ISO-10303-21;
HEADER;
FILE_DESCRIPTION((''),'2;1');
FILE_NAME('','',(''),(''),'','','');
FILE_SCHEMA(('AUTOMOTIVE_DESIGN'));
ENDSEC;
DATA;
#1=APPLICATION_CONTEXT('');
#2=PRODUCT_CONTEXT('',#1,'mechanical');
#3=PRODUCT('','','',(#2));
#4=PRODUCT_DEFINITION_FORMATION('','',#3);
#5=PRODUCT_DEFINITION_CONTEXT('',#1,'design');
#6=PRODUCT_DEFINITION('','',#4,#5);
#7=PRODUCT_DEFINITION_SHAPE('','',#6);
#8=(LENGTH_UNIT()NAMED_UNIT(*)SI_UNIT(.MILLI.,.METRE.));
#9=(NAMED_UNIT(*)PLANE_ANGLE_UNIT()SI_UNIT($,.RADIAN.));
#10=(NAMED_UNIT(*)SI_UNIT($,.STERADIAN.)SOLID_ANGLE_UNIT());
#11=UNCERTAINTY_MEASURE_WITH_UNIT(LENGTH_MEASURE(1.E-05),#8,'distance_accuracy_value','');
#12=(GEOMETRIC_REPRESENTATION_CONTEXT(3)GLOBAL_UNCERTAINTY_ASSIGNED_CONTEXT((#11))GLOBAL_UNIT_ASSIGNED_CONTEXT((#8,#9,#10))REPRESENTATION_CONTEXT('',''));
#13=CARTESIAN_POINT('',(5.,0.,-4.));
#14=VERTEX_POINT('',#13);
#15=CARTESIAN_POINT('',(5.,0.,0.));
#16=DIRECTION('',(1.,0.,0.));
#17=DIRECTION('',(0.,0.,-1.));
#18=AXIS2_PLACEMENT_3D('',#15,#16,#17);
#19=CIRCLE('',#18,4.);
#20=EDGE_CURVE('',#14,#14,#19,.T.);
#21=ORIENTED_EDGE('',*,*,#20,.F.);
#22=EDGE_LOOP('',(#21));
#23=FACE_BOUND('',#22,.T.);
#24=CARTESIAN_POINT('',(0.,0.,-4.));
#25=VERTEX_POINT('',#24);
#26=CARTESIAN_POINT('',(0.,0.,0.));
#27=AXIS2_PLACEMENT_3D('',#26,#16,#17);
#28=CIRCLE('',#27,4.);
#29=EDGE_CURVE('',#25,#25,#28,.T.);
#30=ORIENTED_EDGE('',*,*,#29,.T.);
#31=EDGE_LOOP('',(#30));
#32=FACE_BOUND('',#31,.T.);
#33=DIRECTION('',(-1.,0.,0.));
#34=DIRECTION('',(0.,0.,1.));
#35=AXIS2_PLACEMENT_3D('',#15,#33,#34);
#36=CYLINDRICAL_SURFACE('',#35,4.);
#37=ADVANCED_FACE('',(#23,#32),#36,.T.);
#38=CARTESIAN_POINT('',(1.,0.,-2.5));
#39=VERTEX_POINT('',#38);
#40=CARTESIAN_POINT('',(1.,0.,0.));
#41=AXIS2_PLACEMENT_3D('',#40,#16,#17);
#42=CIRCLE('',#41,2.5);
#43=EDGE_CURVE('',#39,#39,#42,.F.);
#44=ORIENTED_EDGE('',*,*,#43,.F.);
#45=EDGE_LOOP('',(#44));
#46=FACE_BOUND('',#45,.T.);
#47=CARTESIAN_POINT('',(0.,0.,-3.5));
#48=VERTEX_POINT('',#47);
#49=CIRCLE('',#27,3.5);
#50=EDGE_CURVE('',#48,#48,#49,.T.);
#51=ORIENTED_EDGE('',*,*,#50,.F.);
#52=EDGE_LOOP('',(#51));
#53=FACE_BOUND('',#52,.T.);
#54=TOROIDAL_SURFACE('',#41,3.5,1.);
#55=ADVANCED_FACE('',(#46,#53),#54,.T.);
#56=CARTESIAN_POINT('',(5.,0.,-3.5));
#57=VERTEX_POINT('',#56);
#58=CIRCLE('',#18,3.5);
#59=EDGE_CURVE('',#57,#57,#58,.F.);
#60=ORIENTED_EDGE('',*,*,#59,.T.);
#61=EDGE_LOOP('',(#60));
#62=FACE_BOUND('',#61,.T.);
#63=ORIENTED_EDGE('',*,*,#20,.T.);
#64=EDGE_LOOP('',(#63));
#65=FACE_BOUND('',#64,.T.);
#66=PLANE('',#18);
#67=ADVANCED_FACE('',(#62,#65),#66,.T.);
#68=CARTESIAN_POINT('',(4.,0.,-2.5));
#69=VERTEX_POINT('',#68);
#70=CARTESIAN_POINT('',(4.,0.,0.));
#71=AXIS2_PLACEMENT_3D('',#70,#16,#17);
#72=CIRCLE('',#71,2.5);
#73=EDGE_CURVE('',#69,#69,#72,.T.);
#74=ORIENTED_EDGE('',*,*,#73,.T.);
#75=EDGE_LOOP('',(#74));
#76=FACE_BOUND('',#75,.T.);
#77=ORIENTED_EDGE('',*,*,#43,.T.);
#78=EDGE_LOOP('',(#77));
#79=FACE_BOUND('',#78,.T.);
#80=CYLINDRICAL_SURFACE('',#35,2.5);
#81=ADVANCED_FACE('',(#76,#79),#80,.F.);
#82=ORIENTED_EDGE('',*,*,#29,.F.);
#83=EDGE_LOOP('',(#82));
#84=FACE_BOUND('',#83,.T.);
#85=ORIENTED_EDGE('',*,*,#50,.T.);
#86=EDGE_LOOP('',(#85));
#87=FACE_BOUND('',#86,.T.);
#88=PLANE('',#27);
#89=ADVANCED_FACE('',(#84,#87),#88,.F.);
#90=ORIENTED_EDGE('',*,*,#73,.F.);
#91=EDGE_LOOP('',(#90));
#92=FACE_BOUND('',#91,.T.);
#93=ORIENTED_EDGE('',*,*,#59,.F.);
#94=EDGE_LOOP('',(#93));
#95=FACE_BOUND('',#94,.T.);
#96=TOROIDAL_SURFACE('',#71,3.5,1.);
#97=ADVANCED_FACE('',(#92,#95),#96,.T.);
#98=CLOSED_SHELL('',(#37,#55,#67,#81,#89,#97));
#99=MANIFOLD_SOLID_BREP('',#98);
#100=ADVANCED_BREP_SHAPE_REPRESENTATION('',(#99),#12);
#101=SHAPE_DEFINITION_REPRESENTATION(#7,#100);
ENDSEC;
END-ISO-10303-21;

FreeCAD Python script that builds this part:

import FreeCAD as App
import Part
import Sketcher
Q = App.Units.Quantity


def edges_at(feature, points):
    """Names of the edges that pass closest to the given points."""
    edges = feature.Shape.Edges
    near = lambda p: min(range(len(edges)), key=lambda i: edges[i].distToShape(Part.Vertex(*p))[0])
    return sorted({f"Edge{near(p) + 1}" for p in points})

doc = App.newDocument("Part")
params = doc.addObject("Spreadsheet::Sheet", "Params")
for row, (alias, value) in enumerate([
    ("sketch1_diameter", "8 mm"),
    ("sketch1_diameter2", "5 mm"),
    ("pad1_length", "5 mm"),
    ("fillet_radius", "1 mm"),
], start=1):
    params.set(f"A{row}", alias)
    params.set(f"B{row}", "=" + value)
    params.setAlias(f"B{row}", alias)

body = doc.addObject("PartDesign::Body", "Body")

# Sketch on YZ plane
sketch1 = body.newObject("Sketcher::SketchObject", "Sketch")
sketch1.AttachmentSupport = (doc.getObject("YZ_Plane"), [""])
sketch1.MapMode = "FlatFace"
sketch1.addGeometry(Part.Circle(App.Vector(0, 0, 0), App.Vector(0, 0, 1), 4), False)
sketch1.addGeometry(Part.Circle(App.Vector(0, 0, 0), App.Vector(0, 0, 1), 2.5), False)
sketch1.addConstraint(Sketcher.Constraint("Coincident", 0, 3, -1, 1))
sketch1.addConstraint(Sketcher.Constraint("Coincident", 1, 3, -1, 1))
sketch1.addConstraint(Sketcher.Constraint("Diameter", 0, Q("8 mm")))
sketch1.addConstraint(Sketcher.Constraint("Diameter", 1, Q("5 mm")))
sketch1.setExpression("Constraints[2]", "Params.sketch1_diameter")
sketch1.setExpression("Constraints[3]", "Params.sketch1_diameter2")
pad1 = body.newObject("PartDesign::Pad", "Pad")
pad1.Profile = sketch1
pad1.setExpression("Length", "Params.pad1_length")
doc.recompute()

fillet = body.newObject("PartDesign::Fillet", "Fillet")
fillet.Base = (pad1, edges_at(pad1, [(0, 0, 2.5), (5, 0, 2.5)]))
fillet.setExpression("Radius", "Params.fillet_radius")

doc.recompute()
